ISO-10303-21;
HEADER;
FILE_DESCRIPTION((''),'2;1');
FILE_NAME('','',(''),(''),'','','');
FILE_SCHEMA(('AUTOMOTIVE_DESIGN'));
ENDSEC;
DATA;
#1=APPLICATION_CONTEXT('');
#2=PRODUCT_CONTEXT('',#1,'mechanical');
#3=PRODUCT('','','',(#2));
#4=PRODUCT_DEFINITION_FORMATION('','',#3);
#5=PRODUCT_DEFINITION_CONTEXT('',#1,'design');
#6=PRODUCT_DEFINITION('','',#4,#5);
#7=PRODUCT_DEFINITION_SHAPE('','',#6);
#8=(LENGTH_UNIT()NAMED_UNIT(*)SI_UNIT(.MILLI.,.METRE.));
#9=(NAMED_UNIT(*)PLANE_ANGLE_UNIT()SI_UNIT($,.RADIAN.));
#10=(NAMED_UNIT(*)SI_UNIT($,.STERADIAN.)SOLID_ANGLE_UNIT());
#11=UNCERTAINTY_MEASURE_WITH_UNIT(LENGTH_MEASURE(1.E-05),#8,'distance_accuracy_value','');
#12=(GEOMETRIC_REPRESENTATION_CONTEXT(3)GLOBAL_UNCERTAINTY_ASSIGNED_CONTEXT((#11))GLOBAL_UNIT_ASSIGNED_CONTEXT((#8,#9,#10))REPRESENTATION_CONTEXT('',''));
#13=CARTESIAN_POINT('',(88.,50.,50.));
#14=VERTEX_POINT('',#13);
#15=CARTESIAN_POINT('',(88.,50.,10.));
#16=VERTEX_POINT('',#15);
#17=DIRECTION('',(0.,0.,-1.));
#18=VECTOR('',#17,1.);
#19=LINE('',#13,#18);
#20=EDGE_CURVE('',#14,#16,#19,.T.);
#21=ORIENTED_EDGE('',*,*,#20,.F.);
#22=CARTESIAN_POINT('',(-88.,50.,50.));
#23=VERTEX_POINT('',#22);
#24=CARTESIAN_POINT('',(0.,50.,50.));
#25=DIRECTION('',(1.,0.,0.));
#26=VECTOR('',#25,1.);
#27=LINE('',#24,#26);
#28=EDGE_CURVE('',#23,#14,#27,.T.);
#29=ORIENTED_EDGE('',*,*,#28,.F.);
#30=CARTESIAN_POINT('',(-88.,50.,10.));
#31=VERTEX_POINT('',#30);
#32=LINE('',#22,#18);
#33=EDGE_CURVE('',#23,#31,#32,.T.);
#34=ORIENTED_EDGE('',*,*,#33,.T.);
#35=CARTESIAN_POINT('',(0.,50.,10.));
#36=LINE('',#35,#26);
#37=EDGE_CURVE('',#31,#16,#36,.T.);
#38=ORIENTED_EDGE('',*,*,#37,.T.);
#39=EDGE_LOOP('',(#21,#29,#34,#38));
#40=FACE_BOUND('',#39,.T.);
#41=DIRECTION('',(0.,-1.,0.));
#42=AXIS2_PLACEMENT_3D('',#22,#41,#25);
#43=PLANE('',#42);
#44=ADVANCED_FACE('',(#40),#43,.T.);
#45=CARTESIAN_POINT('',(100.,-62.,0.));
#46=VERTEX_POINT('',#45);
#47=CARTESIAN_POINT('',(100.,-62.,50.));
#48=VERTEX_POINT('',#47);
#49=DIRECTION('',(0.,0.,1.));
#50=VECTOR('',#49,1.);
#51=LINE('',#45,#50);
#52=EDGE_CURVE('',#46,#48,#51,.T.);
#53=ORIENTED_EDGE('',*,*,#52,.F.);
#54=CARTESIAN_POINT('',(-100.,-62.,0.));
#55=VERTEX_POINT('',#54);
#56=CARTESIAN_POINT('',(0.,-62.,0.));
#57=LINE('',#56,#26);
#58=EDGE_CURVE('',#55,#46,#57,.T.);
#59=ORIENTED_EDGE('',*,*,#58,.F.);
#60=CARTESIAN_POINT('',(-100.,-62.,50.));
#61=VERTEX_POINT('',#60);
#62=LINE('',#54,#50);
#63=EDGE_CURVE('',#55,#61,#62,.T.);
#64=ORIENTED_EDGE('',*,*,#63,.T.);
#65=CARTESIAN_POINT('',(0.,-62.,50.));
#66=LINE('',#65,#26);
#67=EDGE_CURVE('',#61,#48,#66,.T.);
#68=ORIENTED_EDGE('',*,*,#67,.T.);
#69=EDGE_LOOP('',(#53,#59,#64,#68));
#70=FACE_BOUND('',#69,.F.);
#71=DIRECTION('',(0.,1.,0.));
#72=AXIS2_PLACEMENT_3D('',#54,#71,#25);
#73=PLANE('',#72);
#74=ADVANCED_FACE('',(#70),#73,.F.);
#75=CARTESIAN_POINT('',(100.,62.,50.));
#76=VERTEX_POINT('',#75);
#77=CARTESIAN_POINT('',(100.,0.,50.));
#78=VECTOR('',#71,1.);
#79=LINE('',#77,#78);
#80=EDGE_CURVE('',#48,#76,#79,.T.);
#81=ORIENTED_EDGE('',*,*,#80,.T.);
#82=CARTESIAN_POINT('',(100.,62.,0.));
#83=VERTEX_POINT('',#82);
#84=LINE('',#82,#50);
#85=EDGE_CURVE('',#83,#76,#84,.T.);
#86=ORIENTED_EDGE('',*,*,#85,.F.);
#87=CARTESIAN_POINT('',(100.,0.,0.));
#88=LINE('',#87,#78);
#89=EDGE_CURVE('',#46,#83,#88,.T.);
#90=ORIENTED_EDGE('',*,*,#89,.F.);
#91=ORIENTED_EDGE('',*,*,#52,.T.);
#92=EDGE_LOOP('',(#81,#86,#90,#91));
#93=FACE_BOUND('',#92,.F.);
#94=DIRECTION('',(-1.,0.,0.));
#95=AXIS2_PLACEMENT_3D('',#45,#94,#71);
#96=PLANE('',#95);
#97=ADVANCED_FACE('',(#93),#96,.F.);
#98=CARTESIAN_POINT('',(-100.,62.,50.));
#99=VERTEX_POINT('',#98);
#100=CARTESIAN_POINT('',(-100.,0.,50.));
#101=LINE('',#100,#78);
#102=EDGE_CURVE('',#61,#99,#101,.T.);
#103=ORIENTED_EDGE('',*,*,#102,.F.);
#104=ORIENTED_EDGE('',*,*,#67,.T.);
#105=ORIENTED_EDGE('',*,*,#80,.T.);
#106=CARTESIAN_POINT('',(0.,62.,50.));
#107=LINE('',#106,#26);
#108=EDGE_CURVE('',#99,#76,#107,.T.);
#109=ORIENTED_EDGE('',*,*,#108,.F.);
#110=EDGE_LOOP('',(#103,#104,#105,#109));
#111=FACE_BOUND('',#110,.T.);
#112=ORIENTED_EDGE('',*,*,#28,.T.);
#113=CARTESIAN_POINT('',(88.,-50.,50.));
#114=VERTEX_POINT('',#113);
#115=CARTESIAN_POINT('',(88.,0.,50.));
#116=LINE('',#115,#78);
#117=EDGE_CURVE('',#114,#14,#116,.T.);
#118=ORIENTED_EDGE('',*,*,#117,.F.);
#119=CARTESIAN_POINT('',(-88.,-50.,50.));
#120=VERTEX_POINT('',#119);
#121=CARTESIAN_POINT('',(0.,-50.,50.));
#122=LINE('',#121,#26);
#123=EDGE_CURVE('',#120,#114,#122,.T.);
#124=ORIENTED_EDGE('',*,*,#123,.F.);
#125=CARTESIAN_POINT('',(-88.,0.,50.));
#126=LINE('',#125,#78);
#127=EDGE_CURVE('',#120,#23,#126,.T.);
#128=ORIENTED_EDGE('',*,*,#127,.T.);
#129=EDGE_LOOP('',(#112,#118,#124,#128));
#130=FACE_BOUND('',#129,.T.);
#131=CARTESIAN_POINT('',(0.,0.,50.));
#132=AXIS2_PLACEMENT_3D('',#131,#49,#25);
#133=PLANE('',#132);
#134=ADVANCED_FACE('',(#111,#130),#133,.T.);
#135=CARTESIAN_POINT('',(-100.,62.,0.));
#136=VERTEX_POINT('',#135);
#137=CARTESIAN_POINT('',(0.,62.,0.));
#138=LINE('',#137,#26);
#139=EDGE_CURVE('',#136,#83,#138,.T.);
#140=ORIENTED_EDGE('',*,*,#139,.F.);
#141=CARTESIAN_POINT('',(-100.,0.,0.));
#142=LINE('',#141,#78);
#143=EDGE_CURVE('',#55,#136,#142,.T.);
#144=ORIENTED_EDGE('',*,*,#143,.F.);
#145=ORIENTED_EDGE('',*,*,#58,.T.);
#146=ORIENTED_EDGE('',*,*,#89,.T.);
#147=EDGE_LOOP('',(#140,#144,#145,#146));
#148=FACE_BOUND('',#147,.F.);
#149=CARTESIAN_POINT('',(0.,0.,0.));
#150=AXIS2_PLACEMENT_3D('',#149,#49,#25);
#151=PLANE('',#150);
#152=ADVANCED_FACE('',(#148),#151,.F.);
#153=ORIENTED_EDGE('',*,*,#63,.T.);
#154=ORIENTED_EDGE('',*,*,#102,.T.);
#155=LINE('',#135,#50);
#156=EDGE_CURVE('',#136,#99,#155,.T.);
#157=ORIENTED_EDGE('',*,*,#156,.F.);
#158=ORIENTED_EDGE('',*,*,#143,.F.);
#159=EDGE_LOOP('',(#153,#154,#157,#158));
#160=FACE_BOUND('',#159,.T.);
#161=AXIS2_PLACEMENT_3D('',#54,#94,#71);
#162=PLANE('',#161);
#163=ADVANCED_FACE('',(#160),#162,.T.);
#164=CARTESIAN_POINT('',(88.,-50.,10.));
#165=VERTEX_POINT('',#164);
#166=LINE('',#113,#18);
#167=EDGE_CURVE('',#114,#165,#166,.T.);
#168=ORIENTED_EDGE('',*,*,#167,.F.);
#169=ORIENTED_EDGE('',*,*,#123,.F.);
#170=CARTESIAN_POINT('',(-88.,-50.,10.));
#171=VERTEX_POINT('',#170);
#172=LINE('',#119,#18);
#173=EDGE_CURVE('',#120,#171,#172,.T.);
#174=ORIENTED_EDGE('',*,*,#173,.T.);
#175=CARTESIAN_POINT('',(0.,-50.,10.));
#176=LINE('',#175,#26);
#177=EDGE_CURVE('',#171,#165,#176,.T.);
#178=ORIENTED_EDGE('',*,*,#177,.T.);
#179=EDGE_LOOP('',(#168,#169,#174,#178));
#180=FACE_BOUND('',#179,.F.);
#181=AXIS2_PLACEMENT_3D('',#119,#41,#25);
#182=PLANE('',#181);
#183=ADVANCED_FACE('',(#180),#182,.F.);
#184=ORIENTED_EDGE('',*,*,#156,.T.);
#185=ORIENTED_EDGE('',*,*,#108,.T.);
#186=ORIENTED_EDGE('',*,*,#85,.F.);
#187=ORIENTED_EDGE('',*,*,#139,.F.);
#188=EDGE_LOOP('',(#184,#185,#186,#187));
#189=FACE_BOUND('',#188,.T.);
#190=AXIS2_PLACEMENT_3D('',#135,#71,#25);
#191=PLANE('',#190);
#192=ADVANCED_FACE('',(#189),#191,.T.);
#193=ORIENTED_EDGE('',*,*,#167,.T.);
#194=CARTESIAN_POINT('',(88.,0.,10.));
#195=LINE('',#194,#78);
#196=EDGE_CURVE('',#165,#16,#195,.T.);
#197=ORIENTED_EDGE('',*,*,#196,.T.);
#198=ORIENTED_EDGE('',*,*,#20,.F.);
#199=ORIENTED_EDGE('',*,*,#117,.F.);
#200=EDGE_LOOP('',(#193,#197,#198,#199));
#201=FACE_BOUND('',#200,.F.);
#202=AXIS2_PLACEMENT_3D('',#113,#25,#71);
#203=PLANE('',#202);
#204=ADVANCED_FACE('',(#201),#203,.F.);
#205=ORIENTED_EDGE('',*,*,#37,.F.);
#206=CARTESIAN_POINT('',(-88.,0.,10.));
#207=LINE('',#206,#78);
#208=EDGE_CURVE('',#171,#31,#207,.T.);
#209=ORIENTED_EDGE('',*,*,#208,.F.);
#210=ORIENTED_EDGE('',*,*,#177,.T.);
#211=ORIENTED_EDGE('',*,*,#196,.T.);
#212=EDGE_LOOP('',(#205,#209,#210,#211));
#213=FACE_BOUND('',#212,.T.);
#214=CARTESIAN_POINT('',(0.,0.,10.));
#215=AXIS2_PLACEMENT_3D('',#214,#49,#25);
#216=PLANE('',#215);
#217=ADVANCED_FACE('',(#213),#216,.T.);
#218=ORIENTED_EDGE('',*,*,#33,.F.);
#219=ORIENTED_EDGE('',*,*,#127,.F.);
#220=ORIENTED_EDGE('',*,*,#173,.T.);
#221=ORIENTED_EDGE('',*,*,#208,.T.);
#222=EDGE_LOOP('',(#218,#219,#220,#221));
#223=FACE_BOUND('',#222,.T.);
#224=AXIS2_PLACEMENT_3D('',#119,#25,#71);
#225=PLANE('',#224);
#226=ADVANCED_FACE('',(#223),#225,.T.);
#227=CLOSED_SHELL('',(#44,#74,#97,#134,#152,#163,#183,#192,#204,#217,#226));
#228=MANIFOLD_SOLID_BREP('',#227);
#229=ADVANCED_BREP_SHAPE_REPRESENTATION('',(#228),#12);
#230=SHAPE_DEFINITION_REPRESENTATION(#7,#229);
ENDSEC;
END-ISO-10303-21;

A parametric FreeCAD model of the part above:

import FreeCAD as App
import Part
import Sketcher
from FreeCAD import Vector
Q = App.Units.Quantity


def add_polygon(sketch, points):
    """Adds a closed chain of lines whose ends are joined by coincident constraints."""
    first, n = sketch.GeometryCount, len(points)
    for a, b in zip(points, points[1:] + points[:1]):
        sketch.addGeometry(Part.LineSegment(App.Vector(*a, 0), App.Vector(*b, 0)), False)
    for i in range(n):
        sketch.addConstraint(Sketcher.Constraint("Coincident", first + i, 2, first + (i + 1) % n, 1))

doc = App.newDocument("Part")
body = doc.addObject("PartDesign::Body", "Body")

sketch1 = body.newObject("Sketcher::SketchObject", "Sketch")
sketch1.AttachmentSupport = (doc.getObject("XY_Plane"), [""])
sketch1.MapMode = "FlatFace"
add_polygon(sketch1, [(-100, 62), (-100, -62), (100, -62), (100, 62)])
sketch1.addConstraint(Sketcher.Constraint("Vertical", 0))
sketch1.addConstraint(Sketcher.Constraint("Horizontal", 1))
sketch1.addConstraint(Sketcher.Constraint("Vertical", 2))
sketch1.addConstraint(Sketcher.Constraint("Horizontal", 3))
sketch1.addConstraint(Sketcher.Constraint("Symmetric", 0, 2, 2, 2, -1, 1))
sketch1.addConstraint(Sketcher.Constraint("DistanceX", 1, 1, 1, 2, Q("200 mm")))
sketch1.addConstraint(Sketcher.Constraint("DistanceY", 0, 2, 0, 1, Q("124 mm")))
pad1 = body.newObject("PartDesign::Pad", "Pad")
pad1.Profile = sketch1
pad1.Length = 50

sketch2 = body.newObject("Sketcher::SketchObject", "Sketch001")
sketch2.AttachmentSupport = (doc.getObject("XY_Plane"), [""])
sketch2.MapMode = "FlatFace"
sketch2.AttachmentOffset = App.Placement(Vector(0, 0, 50), App.Rotation())
add_polygon(sketch2, [(-88, 50), (-88, -50), (88, -50), (88, 50)])
sketch2.addConstraint(Sketcher.Constraint("Vertical", 0))
sketch2.addConstraint(Sketcher.Constraint("Horizontal", 1))
sketch2.addConstraint(Sketcher.Constraint("Vertical", 2))
sketch2.addConstraint(Sketcher.Constraint("Horizontal", 3))
sketch2.addConstraint(Sketcher.Constraint("Symmetric", 0, 2, 2, 2, -1, 1))
sketch2.addConstraint(Sketcher.Constraint("DistanceX", 1, 1, 1, 2, Q("176 mm")))
sketch2.addConstraint(Sketcher.Constraint("DistanceY", 0, 2, 0, 1, Q("100 mm")))
pocket1 = body.newObject("PartDesign::Pocket", "Pocket")
pocket1.Profile = sketch2
pocket1.Length = 40

doc.recompute()
